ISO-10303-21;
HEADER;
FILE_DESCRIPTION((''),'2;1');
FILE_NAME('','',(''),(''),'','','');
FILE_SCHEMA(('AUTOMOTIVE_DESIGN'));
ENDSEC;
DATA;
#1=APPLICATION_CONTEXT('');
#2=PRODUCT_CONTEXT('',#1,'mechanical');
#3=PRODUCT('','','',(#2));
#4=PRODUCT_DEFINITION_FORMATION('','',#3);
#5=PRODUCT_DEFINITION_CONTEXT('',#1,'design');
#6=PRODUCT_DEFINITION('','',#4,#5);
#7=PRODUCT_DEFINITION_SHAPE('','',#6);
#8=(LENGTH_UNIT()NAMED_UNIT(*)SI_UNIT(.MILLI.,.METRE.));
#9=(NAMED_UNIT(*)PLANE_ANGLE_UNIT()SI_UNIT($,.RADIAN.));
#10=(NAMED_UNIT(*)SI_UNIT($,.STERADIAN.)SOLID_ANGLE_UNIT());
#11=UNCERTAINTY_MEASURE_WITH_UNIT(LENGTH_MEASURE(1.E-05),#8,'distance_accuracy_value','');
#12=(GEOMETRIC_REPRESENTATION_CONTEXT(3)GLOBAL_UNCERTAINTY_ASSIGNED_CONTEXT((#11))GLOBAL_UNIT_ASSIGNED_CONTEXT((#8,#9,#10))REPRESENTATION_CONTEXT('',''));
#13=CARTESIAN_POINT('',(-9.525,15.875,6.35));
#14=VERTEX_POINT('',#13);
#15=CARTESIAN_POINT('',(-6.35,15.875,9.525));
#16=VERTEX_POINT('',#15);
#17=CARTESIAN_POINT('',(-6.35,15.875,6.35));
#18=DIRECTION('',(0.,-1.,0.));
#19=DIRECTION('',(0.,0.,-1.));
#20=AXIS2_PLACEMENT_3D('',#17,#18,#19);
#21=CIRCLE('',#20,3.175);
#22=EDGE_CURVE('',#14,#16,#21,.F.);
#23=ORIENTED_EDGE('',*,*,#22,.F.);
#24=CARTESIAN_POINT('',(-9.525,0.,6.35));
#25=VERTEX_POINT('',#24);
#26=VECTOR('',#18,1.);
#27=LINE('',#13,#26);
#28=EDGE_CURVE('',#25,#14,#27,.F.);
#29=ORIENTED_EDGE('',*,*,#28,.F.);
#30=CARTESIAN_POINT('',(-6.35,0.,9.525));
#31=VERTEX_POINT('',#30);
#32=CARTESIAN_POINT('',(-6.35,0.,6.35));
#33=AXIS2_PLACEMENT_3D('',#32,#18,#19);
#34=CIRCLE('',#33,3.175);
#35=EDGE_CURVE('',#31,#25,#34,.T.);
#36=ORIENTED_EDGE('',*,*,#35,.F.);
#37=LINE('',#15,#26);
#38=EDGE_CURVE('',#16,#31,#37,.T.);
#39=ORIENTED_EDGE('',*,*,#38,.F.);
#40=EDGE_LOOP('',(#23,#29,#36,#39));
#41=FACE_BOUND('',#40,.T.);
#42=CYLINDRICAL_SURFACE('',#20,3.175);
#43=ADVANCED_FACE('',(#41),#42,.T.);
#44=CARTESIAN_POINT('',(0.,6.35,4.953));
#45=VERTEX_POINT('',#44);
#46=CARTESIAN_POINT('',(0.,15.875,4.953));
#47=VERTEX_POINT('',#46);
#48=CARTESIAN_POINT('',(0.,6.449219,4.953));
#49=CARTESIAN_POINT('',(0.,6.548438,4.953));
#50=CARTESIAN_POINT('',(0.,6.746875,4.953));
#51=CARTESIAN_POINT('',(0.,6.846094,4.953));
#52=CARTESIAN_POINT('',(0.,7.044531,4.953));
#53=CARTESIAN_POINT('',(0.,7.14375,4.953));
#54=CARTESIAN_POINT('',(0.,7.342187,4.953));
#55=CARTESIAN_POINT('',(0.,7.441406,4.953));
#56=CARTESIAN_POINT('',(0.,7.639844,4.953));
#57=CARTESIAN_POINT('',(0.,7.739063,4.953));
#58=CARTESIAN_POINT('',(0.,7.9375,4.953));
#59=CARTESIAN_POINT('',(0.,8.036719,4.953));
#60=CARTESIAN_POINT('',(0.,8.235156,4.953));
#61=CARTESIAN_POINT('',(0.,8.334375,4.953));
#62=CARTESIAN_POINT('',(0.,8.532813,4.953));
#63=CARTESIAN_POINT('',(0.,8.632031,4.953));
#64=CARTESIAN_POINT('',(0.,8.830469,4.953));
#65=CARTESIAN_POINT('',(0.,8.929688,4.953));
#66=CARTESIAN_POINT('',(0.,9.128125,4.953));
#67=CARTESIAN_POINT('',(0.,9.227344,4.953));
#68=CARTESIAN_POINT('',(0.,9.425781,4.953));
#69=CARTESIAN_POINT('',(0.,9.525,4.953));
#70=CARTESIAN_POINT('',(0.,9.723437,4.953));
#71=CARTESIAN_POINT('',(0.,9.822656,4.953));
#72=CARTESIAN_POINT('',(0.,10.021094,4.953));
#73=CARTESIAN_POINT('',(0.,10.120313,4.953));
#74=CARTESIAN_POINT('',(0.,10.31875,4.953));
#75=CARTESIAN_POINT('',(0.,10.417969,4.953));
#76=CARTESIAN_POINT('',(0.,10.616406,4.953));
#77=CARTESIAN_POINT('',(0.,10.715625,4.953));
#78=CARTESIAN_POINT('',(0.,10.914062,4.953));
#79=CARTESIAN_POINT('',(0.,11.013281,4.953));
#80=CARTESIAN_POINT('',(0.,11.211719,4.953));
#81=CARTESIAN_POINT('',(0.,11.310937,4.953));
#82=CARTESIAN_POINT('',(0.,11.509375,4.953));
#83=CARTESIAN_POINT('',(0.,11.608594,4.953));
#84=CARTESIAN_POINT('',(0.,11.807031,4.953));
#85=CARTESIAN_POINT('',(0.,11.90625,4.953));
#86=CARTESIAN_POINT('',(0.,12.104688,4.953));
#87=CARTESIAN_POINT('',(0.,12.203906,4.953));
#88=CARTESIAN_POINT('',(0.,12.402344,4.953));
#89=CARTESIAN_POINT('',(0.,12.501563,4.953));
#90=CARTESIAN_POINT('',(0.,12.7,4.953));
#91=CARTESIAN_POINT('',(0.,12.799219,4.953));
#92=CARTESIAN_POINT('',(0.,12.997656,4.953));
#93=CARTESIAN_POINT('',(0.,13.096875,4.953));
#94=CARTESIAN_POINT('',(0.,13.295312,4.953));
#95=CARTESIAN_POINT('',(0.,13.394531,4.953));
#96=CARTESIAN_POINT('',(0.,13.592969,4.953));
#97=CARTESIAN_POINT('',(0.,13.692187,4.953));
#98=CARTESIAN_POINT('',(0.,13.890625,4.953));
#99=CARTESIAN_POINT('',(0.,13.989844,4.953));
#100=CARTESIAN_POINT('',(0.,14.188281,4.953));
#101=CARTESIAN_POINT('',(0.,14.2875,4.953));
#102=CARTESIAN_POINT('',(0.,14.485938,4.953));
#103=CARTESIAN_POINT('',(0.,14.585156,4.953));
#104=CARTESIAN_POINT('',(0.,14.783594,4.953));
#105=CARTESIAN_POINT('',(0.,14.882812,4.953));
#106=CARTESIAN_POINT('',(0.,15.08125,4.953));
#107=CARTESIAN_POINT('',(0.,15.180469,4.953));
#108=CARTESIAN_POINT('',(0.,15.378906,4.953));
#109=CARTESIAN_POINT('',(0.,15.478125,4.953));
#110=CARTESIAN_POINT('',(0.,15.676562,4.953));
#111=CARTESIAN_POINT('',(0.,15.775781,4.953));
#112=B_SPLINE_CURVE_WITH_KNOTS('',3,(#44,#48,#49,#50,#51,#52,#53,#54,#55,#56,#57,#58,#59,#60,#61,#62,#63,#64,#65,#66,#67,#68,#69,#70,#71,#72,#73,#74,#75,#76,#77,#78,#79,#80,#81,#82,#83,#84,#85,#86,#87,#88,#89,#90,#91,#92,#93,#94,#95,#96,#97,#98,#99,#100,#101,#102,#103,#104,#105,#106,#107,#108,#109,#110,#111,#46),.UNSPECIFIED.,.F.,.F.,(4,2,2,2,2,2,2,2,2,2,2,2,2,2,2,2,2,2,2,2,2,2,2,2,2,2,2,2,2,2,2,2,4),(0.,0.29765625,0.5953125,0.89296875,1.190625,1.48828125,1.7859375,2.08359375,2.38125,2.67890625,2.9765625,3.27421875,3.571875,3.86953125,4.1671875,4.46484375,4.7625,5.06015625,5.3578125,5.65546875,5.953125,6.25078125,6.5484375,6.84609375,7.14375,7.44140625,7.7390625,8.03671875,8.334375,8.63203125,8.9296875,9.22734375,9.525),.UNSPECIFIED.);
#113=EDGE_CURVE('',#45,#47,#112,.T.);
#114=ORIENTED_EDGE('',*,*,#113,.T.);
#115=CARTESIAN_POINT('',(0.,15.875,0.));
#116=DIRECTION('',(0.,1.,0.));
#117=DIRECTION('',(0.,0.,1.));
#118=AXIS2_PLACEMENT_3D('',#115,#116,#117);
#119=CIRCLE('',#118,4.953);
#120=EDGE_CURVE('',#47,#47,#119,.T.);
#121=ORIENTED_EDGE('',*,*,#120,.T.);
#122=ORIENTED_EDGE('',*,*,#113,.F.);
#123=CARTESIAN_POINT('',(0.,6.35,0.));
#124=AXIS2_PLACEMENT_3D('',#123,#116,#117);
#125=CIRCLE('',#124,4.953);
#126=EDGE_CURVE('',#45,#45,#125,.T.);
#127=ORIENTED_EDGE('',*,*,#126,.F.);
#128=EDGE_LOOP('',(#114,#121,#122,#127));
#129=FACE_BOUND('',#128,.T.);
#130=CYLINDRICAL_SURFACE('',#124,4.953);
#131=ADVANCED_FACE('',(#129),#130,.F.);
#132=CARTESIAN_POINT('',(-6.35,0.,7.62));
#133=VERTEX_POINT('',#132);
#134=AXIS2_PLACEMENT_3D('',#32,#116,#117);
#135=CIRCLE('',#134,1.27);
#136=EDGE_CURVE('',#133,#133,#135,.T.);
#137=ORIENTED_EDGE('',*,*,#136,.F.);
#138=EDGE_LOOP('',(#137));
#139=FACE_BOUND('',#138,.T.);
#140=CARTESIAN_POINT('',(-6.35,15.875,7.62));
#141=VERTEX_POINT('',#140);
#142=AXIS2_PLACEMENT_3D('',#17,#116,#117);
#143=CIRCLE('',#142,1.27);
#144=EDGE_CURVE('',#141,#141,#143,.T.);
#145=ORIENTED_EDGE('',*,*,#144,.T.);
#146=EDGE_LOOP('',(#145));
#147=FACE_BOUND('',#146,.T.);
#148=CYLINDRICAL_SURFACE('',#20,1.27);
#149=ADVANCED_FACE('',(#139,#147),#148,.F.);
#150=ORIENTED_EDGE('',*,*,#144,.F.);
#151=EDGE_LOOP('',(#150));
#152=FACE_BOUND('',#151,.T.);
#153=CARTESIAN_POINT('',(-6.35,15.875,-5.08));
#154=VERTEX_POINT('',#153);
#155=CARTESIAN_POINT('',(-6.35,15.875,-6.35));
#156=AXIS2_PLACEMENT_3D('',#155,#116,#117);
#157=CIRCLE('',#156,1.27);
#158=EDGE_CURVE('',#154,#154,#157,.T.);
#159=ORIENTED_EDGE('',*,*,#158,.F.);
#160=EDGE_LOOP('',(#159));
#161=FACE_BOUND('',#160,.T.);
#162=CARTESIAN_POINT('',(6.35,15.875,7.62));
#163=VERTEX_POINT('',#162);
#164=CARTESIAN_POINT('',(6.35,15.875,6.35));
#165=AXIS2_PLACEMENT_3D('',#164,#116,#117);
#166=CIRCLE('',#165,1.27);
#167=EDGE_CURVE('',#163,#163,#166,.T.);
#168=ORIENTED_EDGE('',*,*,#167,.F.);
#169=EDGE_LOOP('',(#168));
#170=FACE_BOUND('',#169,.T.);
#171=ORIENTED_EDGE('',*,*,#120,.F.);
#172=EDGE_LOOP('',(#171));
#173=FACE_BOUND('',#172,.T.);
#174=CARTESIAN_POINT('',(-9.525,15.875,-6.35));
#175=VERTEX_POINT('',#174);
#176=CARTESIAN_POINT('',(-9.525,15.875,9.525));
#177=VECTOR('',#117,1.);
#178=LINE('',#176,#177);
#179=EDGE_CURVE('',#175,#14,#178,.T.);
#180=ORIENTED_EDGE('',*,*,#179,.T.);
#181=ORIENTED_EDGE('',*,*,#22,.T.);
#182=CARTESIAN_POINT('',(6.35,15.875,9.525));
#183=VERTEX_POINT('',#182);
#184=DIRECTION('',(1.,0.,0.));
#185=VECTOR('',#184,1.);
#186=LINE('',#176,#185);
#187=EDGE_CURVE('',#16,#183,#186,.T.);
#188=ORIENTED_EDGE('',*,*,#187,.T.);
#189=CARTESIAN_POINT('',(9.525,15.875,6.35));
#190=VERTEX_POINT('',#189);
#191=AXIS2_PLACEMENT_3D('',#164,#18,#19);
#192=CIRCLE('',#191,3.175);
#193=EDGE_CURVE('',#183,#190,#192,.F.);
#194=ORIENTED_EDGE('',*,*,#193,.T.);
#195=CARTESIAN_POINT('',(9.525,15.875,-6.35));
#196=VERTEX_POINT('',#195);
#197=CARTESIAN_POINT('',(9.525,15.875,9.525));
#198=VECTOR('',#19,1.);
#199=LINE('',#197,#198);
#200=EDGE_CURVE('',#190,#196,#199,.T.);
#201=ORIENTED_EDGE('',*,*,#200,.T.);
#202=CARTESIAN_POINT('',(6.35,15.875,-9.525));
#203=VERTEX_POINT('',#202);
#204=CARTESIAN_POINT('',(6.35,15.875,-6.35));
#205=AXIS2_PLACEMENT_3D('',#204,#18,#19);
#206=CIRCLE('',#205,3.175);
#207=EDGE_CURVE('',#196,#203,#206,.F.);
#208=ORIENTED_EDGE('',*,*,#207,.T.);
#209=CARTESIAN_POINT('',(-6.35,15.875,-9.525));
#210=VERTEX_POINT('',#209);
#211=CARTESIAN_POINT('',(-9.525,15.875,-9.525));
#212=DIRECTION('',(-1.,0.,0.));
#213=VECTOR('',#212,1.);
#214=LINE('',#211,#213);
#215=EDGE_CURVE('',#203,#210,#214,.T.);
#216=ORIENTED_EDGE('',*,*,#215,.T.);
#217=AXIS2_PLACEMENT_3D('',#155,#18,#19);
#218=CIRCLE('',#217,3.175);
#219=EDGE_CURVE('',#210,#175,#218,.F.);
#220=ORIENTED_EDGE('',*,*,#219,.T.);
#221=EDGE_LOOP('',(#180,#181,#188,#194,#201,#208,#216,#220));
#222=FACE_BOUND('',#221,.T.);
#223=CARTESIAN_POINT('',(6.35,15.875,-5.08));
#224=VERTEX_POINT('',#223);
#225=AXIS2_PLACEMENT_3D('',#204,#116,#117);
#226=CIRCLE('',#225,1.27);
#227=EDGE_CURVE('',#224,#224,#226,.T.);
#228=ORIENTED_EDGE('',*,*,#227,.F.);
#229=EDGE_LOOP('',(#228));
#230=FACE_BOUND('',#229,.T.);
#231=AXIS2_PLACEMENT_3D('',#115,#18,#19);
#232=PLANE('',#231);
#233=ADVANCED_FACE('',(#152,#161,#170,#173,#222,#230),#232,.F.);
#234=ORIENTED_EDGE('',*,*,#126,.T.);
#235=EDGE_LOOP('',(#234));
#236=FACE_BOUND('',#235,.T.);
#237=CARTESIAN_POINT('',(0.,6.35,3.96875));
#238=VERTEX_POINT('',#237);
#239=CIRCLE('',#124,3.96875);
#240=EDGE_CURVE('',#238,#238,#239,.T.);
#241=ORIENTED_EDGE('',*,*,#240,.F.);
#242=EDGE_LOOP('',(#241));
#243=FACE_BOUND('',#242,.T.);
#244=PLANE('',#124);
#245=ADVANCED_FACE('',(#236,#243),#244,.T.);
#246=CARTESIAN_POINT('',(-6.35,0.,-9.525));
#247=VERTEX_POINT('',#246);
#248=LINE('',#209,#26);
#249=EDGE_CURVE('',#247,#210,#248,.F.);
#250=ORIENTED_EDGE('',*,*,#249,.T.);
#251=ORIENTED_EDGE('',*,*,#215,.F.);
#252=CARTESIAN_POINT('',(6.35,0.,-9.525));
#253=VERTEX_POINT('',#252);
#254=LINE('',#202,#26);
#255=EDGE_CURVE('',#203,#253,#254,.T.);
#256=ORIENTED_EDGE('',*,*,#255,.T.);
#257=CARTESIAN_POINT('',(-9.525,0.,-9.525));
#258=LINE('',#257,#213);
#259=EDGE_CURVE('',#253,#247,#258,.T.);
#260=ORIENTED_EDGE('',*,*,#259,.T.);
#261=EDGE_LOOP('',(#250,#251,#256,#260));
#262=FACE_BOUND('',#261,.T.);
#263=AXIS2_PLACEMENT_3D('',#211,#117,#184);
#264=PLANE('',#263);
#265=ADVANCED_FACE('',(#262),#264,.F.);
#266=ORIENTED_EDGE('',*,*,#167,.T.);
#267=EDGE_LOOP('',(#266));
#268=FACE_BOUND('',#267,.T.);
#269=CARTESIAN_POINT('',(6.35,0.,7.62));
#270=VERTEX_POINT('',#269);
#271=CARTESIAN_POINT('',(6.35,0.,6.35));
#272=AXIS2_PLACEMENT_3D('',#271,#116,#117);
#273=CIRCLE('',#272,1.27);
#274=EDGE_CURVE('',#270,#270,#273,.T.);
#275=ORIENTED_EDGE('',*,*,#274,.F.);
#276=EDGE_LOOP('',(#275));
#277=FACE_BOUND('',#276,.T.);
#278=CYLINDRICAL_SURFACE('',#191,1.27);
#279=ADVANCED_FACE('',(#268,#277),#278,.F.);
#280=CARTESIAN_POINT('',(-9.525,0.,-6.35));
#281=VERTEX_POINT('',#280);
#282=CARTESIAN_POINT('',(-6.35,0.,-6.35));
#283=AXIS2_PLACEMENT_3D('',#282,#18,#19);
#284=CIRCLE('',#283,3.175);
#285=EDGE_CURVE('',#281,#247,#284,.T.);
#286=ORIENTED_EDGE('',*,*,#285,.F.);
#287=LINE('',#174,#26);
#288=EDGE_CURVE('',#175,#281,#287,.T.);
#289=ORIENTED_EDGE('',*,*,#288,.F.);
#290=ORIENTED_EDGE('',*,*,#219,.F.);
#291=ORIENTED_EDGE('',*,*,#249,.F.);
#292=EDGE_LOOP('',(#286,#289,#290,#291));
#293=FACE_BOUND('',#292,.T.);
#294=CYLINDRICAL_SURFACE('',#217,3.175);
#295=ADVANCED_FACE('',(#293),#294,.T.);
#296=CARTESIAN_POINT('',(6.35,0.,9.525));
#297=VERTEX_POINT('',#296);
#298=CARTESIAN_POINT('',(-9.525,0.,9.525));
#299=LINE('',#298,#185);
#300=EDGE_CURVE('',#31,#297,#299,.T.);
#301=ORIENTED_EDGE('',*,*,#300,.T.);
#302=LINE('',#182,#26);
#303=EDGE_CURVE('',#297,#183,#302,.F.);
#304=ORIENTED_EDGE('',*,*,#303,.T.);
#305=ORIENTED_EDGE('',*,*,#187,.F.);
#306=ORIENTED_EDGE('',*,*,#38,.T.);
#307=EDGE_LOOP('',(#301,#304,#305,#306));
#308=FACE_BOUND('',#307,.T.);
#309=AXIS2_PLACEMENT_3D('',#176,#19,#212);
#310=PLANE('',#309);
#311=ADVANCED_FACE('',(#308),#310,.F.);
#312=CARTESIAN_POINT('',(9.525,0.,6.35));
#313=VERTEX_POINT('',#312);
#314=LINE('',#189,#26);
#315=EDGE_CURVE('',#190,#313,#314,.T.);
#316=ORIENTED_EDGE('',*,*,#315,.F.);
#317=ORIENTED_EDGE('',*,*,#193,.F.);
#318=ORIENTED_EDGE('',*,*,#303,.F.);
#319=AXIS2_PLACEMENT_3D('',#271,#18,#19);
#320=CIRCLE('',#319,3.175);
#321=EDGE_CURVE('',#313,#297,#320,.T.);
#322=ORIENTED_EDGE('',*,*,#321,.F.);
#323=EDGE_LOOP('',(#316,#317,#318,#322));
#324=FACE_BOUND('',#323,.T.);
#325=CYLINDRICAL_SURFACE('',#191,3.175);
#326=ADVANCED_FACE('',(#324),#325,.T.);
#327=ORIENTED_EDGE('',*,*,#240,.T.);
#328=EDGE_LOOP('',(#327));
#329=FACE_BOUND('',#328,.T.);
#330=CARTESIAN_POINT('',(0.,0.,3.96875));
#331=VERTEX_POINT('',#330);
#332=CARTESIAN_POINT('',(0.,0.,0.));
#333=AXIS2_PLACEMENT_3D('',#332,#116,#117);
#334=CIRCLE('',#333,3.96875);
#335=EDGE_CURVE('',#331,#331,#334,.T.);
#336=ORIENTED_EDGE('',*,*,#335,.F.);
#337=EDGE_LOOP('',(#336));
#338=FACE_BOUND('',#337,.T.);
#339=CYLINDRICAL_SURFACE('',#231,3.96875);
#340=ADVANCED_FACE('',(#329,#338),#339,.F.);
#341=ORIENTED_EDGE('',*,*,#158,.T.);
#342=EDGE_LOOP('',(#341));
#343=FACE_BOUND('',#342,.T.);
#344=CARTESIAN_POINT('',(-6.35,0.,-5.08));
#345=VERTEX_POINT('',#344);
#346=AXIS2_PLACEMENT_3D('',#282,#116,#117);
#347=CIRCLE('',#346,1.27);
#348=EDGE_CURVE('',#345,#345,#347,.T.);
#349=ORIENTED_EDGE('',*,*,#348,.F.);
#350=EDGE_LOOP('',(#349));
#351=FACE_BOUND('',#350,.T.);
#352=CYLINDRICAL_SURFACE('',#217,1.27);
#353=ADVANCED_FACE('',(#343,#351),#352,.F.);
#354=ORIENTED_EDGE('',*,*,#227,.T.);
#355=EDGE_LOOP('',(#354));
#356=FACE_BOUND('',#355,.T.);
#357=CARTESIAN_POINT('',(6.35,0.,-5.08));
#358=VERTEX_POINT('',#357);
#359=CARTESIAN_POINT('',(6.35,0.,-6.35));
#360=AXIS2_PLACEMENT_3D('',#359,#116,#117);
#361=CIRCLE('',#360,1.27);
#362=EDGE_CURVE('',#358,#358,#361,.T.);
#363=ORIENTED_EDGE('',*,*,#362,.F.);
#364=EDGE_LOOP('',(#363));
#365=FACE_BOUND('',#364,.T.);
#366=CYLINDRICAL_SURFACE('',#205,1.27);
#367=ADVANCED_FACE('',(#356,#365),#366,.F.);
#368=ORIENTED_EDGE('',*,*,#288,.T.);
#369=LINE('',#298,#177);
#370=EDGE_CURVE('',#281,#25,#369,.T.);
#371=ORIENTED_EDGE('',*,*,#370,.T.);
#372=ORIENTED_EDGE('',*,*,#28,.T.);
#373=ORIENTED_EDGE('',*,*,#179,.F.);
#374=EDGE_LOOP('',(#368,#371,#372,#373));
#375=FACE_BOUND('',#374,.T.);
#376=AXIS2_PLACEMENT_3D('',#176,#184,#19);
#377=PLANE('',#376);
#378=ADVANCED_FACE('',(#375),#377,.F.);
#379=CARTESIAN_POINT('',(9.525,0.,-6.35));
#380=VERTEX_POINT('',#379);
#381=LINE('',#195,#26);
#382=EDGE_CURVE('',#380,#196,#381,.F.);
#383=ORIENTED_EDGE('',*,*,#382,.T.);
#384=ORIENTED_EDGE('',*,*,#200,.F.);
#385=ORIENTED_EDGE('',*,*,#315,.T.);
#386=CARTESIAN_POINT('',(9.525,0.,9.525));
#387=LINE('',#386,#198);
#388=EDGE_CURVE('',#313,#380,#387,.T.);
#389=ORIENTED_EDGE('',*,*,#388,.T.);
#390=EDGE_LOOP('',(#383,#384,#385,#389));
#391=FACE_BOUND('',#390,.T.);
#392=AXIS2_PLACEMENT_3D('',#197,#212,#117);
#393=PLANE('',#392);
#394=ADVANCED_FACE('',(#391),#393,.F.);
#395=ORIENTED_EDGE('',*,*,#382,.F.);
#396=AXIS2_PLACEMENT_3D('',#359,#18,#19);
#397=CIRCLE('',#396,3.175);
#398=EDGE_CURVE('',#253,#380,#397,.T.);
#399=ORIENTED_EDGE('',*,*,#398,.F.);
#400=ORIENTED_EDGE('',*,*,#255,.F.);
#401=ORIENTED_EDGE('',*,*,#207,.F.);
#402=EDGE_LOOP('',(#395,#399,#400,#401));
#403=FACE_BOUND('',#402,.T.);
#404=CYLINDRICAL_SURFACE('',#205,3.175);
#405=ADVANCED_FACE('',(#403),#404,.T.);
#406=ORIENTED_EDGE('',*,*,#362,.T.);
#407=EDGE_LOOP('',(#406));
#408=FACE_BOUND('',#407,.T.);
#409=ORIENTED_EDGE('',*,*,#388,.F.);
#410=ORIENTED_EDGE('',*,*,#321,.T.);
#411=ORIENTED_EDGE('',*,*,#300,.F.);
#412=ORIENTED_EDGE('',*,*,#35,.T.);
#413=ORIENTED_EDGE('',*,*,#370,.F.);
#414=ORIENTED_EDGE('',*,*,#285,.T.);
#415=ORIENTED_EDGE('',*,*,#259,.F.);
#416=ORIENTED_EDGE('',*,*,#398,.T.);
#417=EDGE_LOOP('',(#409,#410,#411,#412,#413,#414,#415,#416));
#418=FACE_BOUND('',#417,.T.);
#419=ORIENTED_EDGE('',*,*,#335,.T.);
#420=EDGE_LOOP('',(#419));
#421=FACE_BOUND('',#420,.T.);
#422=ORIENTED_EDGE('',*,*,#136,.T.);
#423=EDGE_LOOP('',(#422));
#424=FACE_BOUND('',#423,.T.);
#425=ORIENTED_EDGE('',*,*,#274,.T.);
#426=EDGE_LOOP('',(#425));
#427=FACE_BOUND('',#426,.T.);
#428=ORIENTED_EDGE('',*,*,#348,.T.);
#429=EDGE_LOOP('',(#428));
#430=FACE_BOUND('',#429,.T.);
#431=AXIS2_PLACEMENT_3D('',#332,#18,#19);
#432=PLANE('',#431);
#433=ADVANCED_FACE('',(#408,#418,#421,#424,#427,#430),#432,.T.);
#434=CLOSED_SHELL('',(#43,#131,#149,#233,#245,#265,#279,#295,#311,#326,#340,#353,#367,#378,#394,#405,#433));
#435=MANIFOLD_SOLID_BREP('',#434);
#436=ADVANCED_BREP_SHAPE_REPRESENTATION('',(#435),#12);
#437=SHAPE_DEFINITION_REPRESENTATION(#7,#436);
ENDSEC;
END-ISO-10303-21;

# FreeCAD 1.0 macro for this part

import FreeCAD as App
import Part
import Sketcher
Q = App.Units.Quantity


def edges_at(feature, points):
    """Names of the edges that pass closest to the given points."""
    edges = feature.Shape.Edges
    near = lambda p: min(range(len(edges)), key=lambda i: edges[i].distToShape(Part.Vertex(*p))[0])
    return sorted({f"Edge{near(p) + 1}" for p in points})

doc = App.newDocument("Part")
params = doc.addObject("Spreadsheet::Sheet", "Params")
for row, (alias, value) in enumerate([
    ("sketch1_diameter", "0.1 in"),
    ("sketch1_diameter2", "0.3125 in"),
    ("sketch1_width", "0.75 in"),
    ("pad1_length", "0.625 in"),
    ("fillet_radius", "0.125 in"),
    ("sketch2_diameter", "0.39 in"),
    ("pocket1_length", "0.375 in"),
], start=1):
    params.set(f"A{row}", alias)
    params.set(f"B{row}", "=" + value)
    params.setAlias(f"B{row}", alias)

body = doc.addObject("PartDesign::Body", "Body")

# Sketch on XZ plane
sketch1 = doc.addObject("Sketcher::SketchObject", "Sketch")
body.addObject(sketch1)
sketch1.AttachmentSupport = (doc.XZ_Plane, [""])
sketch1.MapMode = "FlatFace"
sketch1.addGeometry(Part.LineSegment(App.Vector(-9.5, -9.5, 0), App.Vector(-9.5, 9.5, 0)), False)
sketch1.addGeometry(Part.LineSegment(App.Vector(-9.5, 9.5, 0), App.Vector(9.5, 9.5, 0)), False)
sketch1.addGeometry(Part.LineSegment(App.Vector(9.5, 9.5, 0), App.Vector(9.5, -9.5, 0)), False)
sketch1.addGeometry(Part.LineSegment(App.Vector(9.5, -9.5, 0), App.Vector(-9.5, -9.5, 0)), False)
sketch1.addGeometry(Part.Circle(App.Vector(-6.3, 6.3, 0), App.Vector(0, 0, 1), 1.3), False)
sketch1.addGeometry(Part.Circle(App.Vector(6.3, 6.3, 0), App.Vector(0, 0, 1), 1.3), False)
sketch1.addGeometry(Part.Circle(App.Vector(-6.3, -6.3, 0), App.Vector(0, 0, 1), 1.3), False)
sketch1.addGeometry(Part.Circle(App.Vector(0, 0, 0), App.Vector(0, 0, 1), 4), False)
sketch1.addGeometry(Part.Circle(App.Vector(6.3, -6.3, 0), App.Vector(0, 0, 1), 1.3), False)
sketch1.addConstraint(Sketcher.Constraint("Coincident", 0, 2, 1, 1))
sketch1.addConstraint(Sketcher.Constraint("Coincident", 1, 2, 2, 1))
sketch1.addConstraint(Sketcher.Constraint("Coincident", 2, 2, 3, 1))
sketch1.addConstraint(Sketcher.Constraint("Coincident", 3, 2, 0, 1))
sketch1.addConstraint(Sketcher.Constraint("Vertical", 0))
sketch1.addConstraint(Sketcher.Constraint("Horizontal", 1))
sketch1.addConstraint(Sketcher.Constraint("Vertical", 2))
sketch1.addConstraint(Sketcher.Constraint("Horizontal", 3))
sketch1.addConstraint(Sketcher.Constraint("Coincident", 7, 3, -1, 1))
sketch1.addConstraint(Sketcher.Constraint("Equal", 4, 5))
sketch1.addConstraint(Sketcher.Constraint("Equal", 5, 6))
sketch1.addConstraint(Sketcher.Constraint("Equal", 6, 8))
sketch1.addConstraint(Sketcher.Constraint("Symmetric", 5, 3, 6, 3, -1, 1))
sketch1.addConstraint(Sketcher.Constraint("Symmetric", 4, 3, 8, 3, -1, 1))
sketch1.addConstraint(Sketcher.Constraint("Symmetric", 0, 2, 2, 2, -1, 1))
sketch1.addConstraint(Sketcher.Constraint("Symmetric", 4, 3, 5, 3, -2))
sketch1.addConstraint(Sketcher.Constraint("Equal", 3, 0))
sketch1.addConstraint(Sketcher.Constraint("Diameter", 4, Q("0.1 in")))
sketch1.addConstraint(Sketcher.Constraint("Diameter", 7, Q("0.3125 in")))
sketch1.addConstraint(Sketcher.Constraint("DistanceX", 1, 1, 1, 2, Q("0.75 in")))
sketch1.addConstraint(Sketcher.Constraint("DistanceX", 4, 3, 5, 3, Q("0.5 in")))
sketch1.addConstraint(Sketcher.Constraint("DistanceY", 6, 3, 4, 3, Q("0.5 in")))
sketch1.setExpression("Constraints[17]", "Params.sketch1_diameter")
sketch1.setExpression("Constraints[18]", "Params.sketch1_diameter2")
sketch1.setExpression("Constraints[19]", "Params.sketch1_width")
pad1 = doc.addObject("PartDesign::Pad", "Pad")
body.addObject(pad1)
pad1.Profile = sketch1
pad1.setExpression("Length", "Params.pad1_length")
pad1.Reversed = True
doc.recompute()

fillet = doc.addObject("PartDesign::Fillet", "Fillet")
body.addObject(fillet)
fillet.Base = (pad1, edges_at(pad1, [
    (9.525, 7.938, 9.525),
    (-9.525, 7.938, 9.525),
    (-9.525, 7.938, -9.525),
    (9.525, 7.938, -9.525),
]))
fillet.setExpression("Radius", "Params.fillet_radius")

# Sketch on XZ plane
sketch2 = doc.addObject("Sketcher::SketchObject", "Sketch001")
body.addObject(sketch2)
sketch2.AttachmentSupport = (doc.XZ_Plane, [""])
sketch2.MapMode = "FlatFace"
sketch2.AttachmentOffset = App.Placement(App.Vector(0, 0, -0.625 * 25.4), App.Rotation())
sketch2.addGeometry(Part.Circle(App.Vector(0, 0, 0), App.Vector(0, 0, 1), 5), False)
sketch2.addConstraint(Sketcher.Constraint("Coincident", 0, 3, -1, 1))
sketch2.addConstraint(Sketcher.Constraint("Diameter", 0, Q("0.39 in")))
sketch2.setExpression("Constraints[1]", "Params.sketch2_diameter")
pocket1 = doc.addObject("PartDesign::Pocket", "Pocket")
body.addObject(pocket1)
pocket1.Profile = sketch2
pocket1.setExpression("Length", "Params.pocket1_length")
pocket1.Reversed = True

doc.recompute()
